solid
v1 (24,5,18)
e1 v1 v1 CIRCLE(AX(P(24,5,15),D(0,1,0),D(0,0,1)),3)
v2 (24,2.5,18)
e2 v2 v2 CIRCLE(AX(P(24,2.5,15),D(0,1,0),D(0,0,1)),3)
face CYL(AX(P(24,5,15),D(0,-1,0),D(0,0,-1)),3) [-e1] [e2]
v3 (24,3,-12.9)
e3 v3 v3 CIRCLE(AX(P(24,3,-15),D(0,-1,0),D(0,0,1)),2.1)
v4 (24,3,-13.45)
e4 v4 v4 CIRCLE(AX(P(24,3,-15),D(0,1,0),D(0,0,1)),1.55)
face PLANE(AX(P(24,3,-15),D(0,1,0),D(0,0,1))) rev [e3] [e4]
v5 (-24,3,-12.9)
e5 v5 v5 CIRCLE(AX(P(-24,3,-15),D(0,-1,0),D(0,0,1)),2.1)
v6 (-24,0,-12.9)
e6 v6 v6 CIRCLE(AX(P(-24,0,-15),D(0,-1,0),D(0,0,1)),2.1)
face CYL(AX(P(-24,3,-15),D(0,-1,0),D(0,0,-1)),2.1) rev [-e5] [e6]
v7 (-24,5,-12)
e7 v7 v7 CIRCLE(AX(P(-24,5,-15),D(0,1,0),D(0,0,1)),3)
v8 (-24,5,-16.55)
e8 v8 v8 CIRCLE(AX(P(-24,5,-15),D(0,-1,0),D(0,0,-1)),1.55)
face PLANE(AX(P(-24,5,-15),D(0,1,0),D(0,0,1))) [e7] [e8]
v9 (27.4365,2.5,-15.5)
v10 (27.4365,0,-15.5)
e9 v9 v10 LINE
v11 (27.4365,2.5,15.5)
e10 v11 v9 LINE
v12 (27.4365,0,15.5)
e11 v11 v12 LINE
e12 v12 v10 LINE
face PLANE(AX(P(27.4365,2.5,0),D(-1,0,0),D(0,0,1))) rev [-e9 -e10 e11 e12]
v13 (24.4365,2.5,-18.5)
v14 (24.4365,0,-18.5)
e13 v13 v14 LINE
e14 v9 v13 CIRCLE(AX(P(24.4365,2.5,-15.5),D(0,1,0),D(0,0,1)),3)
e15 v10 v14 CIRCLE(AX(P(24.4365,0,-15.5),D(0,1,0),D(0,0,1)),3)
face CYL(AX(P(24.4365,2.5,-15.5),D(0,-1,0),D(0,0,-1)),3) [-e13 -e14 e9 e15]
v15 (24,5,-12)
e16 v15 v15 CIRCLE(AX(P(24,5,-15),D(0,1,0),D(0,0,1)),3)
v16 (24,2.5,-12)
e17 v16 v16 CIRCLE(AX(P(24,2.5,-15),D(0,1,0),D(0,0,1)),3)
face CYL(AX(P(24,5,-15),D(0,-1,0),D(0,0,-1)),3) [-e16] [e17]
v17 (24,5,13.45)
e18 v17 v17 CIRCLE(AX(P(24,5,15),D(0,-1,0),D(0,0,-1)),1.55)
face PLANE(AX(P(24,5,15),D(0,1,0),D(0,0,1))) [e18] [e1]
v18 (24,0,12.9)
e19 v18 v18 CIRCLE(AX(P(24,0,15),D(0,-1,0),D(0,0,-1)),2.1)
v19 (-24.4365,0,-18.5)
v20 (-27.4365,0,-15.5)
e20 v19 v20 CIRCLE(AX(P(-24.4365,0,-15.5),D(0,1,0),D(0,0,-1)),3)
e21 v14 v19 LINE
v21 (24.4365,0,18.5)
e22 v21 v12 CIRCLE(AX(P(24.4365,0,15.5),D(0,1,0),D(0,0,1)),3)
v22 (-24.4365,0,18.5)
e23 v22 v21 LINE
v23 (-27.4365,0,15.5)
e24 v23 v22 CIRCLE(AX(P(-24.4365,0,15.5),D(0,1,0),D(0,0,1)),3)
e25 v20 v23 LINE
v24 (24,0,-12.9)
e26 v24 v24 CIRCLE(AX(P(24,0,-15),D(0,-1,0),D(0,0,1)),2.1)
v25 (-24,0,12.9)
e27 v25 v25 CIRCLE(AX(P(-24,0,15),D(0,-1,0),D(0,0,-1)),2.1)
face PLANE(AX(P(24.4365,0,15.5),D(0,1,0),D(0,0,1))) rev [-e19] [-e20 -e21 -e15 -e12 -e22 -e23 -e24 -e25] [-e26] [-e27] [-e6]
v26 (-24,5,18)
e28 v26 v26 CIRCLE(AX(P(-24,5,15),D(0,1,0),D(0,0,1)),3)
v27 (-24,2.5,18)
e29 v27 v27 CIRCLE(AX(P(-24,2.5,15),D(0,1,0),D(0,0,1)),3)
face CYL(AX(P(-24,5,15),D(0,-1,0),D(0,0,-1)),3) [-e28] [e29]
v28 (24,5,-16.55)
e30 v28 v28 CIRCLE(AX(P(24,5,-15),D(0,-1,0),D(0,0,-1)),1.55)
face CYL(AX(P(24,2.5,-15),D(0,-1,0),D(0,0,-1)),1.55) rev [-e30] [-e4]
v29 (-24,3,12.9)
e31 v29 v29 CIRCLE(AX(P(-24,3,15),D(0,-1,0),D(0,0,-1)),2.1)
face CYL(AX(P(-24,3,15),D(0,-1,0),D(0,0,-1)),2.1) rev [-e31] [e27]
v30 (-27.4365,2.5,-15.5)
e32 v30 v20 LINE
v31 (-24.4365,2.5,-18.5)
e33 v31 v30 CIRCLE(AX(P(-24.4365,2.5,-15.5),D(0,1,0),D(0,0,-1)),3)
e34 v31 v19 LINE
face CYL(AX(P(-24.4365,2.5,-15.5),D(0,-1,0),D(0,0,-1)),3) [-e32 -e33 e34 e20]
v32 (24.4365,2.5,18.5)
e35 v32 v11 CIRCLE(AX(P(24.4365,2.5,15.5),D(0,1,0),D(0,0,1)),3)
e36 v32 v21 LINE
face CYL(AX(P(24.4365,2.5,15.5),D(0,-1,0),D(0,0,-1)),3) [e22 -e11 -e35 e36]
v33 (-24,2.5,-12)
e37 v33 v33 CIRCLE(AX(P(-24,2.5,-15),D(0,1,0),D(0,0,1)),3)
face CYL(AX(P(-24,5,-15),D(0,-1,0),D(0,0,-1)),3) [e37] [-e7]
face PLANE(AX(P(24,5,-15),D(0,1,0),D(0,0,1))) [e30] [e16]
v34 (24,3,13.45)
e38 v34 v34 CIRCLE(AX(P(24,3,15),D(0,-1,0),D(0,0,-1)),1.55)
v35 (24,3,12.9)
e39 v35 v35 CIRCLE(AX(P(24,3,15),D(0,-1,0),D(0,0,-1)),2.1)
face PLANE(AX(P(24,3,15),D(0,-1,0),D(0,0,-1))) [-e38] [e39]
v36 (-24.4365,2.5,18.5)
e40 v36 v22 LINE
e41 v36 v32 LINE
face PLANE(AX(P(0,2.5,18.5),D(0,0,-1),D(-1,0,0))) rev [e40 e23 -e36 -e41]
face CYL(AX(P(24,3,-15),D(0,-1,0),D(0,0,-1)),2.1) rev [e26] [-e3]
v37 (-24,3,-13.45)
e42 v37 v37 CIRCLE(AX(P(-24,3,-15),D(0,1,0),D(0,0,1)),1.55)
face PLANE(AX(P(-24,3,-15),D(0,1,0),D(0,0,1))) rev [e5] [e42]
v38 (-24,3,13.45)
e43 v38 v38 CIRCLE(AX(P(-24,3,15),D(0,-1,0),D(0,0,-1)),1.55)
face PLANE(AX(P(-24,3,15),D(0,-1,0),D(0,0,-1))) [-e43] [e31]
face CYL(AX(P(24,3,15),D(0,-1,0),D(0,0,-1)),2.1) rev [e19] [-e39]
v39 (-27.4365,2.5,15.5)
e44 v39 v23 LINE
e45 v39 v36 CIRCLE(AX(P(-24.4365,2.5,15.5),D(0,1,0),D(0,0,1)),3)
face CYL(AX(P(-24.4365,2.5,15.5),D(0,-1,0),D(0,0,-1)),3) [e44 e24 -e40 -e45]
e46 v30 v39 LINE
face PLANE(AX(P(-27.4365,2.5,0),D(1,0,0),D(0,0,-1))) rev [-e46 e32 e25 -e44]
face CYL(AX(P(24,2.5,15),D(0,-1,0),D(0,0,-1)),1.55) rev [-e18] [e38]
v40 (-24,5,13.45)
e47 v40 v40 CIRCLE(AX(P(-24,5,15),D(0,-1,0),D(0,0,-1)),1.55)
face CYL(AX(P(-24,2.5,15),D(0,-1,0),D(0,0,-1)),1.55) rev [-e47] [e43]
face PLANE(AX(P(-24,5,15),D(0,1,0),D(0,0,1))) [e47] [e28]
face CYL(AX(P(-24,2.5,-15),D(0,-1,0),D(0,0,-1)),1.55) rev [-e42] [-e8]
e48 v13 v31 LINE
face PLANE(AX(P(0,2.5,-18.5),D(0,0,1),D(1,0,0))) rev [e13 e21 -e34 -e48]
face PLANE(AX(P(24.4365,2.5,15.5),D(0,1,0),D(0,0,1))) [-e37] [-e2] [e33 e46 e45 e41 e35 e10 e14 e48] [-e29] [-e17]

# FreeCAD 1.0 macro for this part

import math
import FreeCAD as App
import Part
import Sketcher

V = App.Vector
Q = App.Units.Quantity

doc = App.newDocument("Part")
params = doc.addObject("Spreadsheet::Sheet", "Params")
for row, (alias, value) in enumerate([
    ("sketch1_radius", "3 mm"),
    ("sketch1_diameter", "3.1 mm"),
    ("sketch1_height", "31 mm"),
    ("pad1_length", "2.5 mm"),
    ("sketch2_diameter", "6 mm"),
    ("pad2_length", "2.5 mm"),
    ("sketch3_diameter", "3.1 mm"),
    ("sketch4_diameter", "4.2 mm"),
    ("pocket2_length", "3 mm"),
], start=1):
    params.set(f"A{row}", alias)
    params.set(f"B{row}", "=" + value)
    params.setAlias(f"B{row}", alias)

body = doc.addObject("PartDesign::Body", "Body")

sketch1 = body.newObject("Sketcher::SketchObject", "Sketch")
sketch1.AttachmentSupport = (doc.getObject("XZ_Plane"), [""])
sketch1.MapMode = "FlatFace"
sketch1.addGeometry(Part.ArcOfCircle(Part.Circle(V(-24.4, -15.5, 0), V(0, 0, 1), 3), math.radians(180), math.radians(270)), False)
sketch1.addGeometry(Part.LineSegment(V(-27.4, -15.5, 0), V(-27.4, 15.5, 0)), False)
sketch1.addGeometry(Part.ArcOfCircle(Part.Circle(V(-24.4, 15.5, 0), V(0, 0, 1), 3), math.radians(90), math.radians(180)), False)
sketch1.addGeometry(Part.LineSegment(V(-24.4, 18.5, 0), V(24.4, 18.5, 0)), False)
sketch1.addGeometry(Part.ArcOfCircle(Part.Circle(V(24.4, 15.5, 0), V(0, 0, 1), 3), math.radians(0), math.radians(90)), False)
sketch1.addGeometry(Part.LineSegment(V(27.4, 15.5, 0), V(27.4, -15.5, 0)), False)
sketch1.addGeometry(Part.ArcOfCircle(Part.Circle(V(24.4, -15.5, 0), V(0, 0, 1), 3), math.radians(-90), math.radians(0)), False)
sketch1.addGeometry(Part.LineSegment(V(24.4, -18.5, 0), V(-24.4, -18.5, 0)), False)
sketch1.addGeometry(Part.Circle(V(24, 15, 0), V(0, 0, 1), 1.6), False)
sketch1.addGeometry(Part.Circle(V(-24, 15, 0), V(0, 0, 1), 1.6), False)
sketch1.addGeometry(Part.Circle(V(24, -15, 0), V(0, 0, 1), 1.6), False)
sketch1.addGeometry(Part.Circle(V(-24, -15, 0), V(0, 0, 1), 1.6), False)
sketch1.addConstraint(Sketcher.Constraint("Tangent", 0, 1, 1, 1))
sketch1.addConstraint(Sketcher.Constraint("Tangent", 1, 2, 2, 2))
sketch1.addConstraint(Sketcher.Constraint("Tangent", 2, 1, 3, 1))
sketch1.addConstraint(Sketcher.Constraint("Tangent", 3, 2, 4, 2))
sketch1.addConstraint(Sketcher.Constraint("Tangent", 4, 1, 5, 1))
sketch1.addConstraint(Sketcher.Constraint("Tangent", 5, 2, 6, 2))
sketch1.addConstraint(Sketcher.Constraint("Tangent", 6, 1, 7, 1))
sketch1.addConstraint(Sketcher.Constraint("Tangent", 7, 2, 0, 2))
sketch1.addConstraint(Sketcher.Constraint("Vertical", 1))
sketch1.addConstraint(Sketcher.Constraint("Horizontal", 3))
sketch1.addConstraint(Sketcher.Constraint("Vertical", 5))
sketch1.addConstraint(Sketcher.Constraint("Horizontal", 7))
sketch1.addConstraint(Sketcher.Constraint("Equal", 0, 2))
sketch1.addConstraint(Sketcher.Constraint("Equal", 2, 4))
sketch1.addConstraint(Sketcher.Constraint("Equal", 4, 6))
sketch1.addConstraint(Sketcher.Constraint("Equal", 8, 9))
sketch1.addConstraint(Sketcher.Constraint("Equal", 9, 10))
sketch1.addConstraint(Sketcher.Constraint("Equal", 10, 11))
sketch1.addConstraint(Sketcher.Constraint("Symmetric", 0, 3, 4, 3, -1, 1))
sketch1.addConstraint(Sketcher.Constraint("Symmetric", 9, 3, 10, 3, -1, 1))
sketch1.addConstraint(Sketcher.Constraint("Symmetric", 8, 3, 11, 3, -1, 1))
sketch1.addConstraint(Sketcher.Constraint("Symmetric", 8, 3, 9, 3, -2))
sketch1.addConstraint(Sketcher.Constraint("Radius", 0, Q("3 mm")))
sketch1.addConstraint(Sketcher.Constraint("Diameter", 8, Q("3.1 mm")))
sketch1.addConstraint(Sketcher.Constraint("DistanceY", 1, 1, 1, 2, Q("31 mm")))
sketch1.addConstraint(Sketcher.Constraint("DistanceX", -1, 1, 8, 3, Q("24 mm")))
sketch1.addConstraint(Sketcher.Constraint("DistanceY", -1, 1, 8, 3, Q("15 mm")))
sketch1.addConstraint(Sketcher.Constraint("DistanceX", 3, 1, 3, 2, Q("48.873 mm")))
sketch1.setExpression("Constraints[22]", "Params.sketch1_radius")
sketch1.setExpression("Constraints[23]", "Params.sketch1_diameter")
sketch1.setExpression("Constraints[24]", "Params.sketch1_height")
pad1 = body.newObject("PartDesign::Pad", "Pad")
pad1.Profile = sketch1
pad1.setExpression("Length", "Params.pad1_length")
pad1.Reversed = True

sketch2 = body.newObject("Sketcher::SketchObject", "Sketch001")
sketch2.AttachmentSupport = (doc.getObject("XZ_Plane"), [""])
sketch2.MapMode = "FlatFace"
sketch2.AttachmentOffset = App.Placement(V(0, 0, -2.5), App.Rotation())
sketch2.addGeometry(Part.Circle(V(-24, -15, 0), V(0, 0, 1), 3), False)
sketch2.addGeometry(Part.Circle(V(24, -15, 0), V(0, 0, 1), 3), False)
sketch2.addGeometry(Part.Circle(V(-24, 15, 0), V(0, 0, 1), 3), False)
sketch2.addGeometry(Part.Circle(V(24, 15, 0), V(0, 0, 1), 3), False)
sketch2.addConstraint(Sketcher.Constraint("Equal", 0, 1))
sketch2.addConstraint(Sketcher.Constraint("Equal", 1, 2))
sketch2.addConstraint(Sketcher.Constraint("Equal", 2, 3))
sketch2.addConstraint(Sketcher.Constraint("Symmetric", 1, 3, 2, 3, -1, 1))
sketch2.addConstraint(Sketcher.Constraint("Symmetric", 0, 3, 3, 3, -1, 1))
sketch2.addConstraint(Sketcher.Constraint("Symmetric", 0, 3, 1, 3, -2))
sketch2.addConstraint(Sketcher.Constraint("Diameter", 0, Q("6 mm")))
sketch2.addConstraint(Sketcher.Constraint("DistanceX", 0, 3, -1, 1, Q("24 mm")))
sketch2.addConstraint(Sketcher.Constraint("DistanceY", 0, 3, -1, 1, Q("15 mm")))
sketch2.setExpression("Constraints[6]", "Params.sketch2_diameter")
pad2 = body.newObject("PartDesign::Pad", "Pad001")
pad2.Profile = sketch2
pad2.setExpression("Length", "Params.pad2_length")
pad2.Reversed = True

sketch3 = body.newObject("Sketcher::SketchObject", "Sketch002")
sketch3.AttachmentSupport = (doc.getObject("XZ_Plane"), [""])
sketch3.MapMode = "FlatFace"
sketch3.addGeometry(Part.Circle(V(-24, 15, 0), V(0, 0, 1), 1.6), False)
sketch3.addGeometry(Part.Circle(V(24, 15, 0), V(0, 0, 1), 1.6), False)
sketch3.addGeometry(Part.Circle(V(-24, -15, 0), V(0, 0, 1), 1.6), False)
sketch3.addGeometry(Part.Circle(V(24, -15, 0), V(0, 0, 1), 1.6), False)
sketch3.addConstraint(Sketcher.Constraint("Equal", 0, 1))
sketch3.addConstraint(Sketcher.Constraint("Equal", 1, 2))
sketch3.addConstraint(Sketcher.Constraint("Equal", 2, 3))
sketch3.addConstraint(Sketcher.Constraint("Symmetric", 1, 3, 2, 3, -1, 1))
sketch3.addConstraint(Sketcher.Constraint("Symmetric", 0, 3, 3, 3, -1, 1))
sketch3.addConstraint(Sketcher.Constraint("Symmetric", 0, 3, 1, 3, -2))
sketch3.addConstraint(Sketcher.Constraint("Diameter", 0, Q("3.1 mm")))
sketch3.addConstraint(Sketcher.Constraint("DistanceX", 0, 3, -1, 1, Q("24 mm")))
sketch3.addConstraint(Sketcher.Constraint("DistanceY", -1, 1, 0, 3, Q("15 mm")))
sketch3.setExpression("Constraints[6]", "Params.sketch3_diameter")
pocket1 = body.newObject("PartDesign::Pocket", "Pocket")
pocket1.Profile = sketch3
pocket1.Type = "ThroughAll"

sketch4 = body.newObject("Sketcher::SketchObject", "Sketch003")
sketch4.AttachmentSupport = (doc.getObject("XZ_Plane"), [""])
sketch4.MapMode = "FlatFace"
sketch4.addGeometry(Part.Circle(V(-24, 15, 0), V(0, 0, 1), 2.1), False)
sketch4.addGeometry(Part.Circle(V(24, 15, 0), V(0, 0, 1), 2.1), False)
sketch4.addGeometry(Part.Circle(V(24, -15, 0), V(0, 0, 1), 2.1), False)
sketch4.addGeometry(Part.Circle(V(-24, -15, 0), V(0, 0, 1), 2.1), False)
sketch4.addConstraint(Sketcher.Constraint("Equal", 0, 1))
sketch4.addConstraint(Sketcher.Constraint("Equal", 1, 2))
sketch4.addConstraint(Sketcher.Constraint("Equal", 2, 3))
sketch4.addConstraint(Sketcher.Constraint("Symmetric", 0, 3, 2, 3, -1, 1))
sketch4.addConstraint(Sketcher.Constraint("Symmetric", 1, 3, 3, 3, -1, 1))
sketch4.addConstraint(Sketcher.Constraint("Symmetric", 0, 3, 1, 3, -2))
sketch4.addConstraint(Sketcher.Constraint("Diameter", 0, Q("4.2 mm")))
sketch4.addConstraint(Sketcher.Constraint("DistanceX", 0, 3, -1, 1, Q("24 mm")))
sketch4.addConstraint(Sketcher.Constraint("DistanceY", -1, 1, 0, 3, Q("15 mm")))
sketch4.setExpression("Constraints[6]", "Params.sketch4_diameter")
pocket2 = body.newObject("PartDesign::Pocket", "Pocket001")
pocket2.Profile = sketch4
pocket2.setExpression("Length", "Params.pocket2_length")

doc.recompute()
